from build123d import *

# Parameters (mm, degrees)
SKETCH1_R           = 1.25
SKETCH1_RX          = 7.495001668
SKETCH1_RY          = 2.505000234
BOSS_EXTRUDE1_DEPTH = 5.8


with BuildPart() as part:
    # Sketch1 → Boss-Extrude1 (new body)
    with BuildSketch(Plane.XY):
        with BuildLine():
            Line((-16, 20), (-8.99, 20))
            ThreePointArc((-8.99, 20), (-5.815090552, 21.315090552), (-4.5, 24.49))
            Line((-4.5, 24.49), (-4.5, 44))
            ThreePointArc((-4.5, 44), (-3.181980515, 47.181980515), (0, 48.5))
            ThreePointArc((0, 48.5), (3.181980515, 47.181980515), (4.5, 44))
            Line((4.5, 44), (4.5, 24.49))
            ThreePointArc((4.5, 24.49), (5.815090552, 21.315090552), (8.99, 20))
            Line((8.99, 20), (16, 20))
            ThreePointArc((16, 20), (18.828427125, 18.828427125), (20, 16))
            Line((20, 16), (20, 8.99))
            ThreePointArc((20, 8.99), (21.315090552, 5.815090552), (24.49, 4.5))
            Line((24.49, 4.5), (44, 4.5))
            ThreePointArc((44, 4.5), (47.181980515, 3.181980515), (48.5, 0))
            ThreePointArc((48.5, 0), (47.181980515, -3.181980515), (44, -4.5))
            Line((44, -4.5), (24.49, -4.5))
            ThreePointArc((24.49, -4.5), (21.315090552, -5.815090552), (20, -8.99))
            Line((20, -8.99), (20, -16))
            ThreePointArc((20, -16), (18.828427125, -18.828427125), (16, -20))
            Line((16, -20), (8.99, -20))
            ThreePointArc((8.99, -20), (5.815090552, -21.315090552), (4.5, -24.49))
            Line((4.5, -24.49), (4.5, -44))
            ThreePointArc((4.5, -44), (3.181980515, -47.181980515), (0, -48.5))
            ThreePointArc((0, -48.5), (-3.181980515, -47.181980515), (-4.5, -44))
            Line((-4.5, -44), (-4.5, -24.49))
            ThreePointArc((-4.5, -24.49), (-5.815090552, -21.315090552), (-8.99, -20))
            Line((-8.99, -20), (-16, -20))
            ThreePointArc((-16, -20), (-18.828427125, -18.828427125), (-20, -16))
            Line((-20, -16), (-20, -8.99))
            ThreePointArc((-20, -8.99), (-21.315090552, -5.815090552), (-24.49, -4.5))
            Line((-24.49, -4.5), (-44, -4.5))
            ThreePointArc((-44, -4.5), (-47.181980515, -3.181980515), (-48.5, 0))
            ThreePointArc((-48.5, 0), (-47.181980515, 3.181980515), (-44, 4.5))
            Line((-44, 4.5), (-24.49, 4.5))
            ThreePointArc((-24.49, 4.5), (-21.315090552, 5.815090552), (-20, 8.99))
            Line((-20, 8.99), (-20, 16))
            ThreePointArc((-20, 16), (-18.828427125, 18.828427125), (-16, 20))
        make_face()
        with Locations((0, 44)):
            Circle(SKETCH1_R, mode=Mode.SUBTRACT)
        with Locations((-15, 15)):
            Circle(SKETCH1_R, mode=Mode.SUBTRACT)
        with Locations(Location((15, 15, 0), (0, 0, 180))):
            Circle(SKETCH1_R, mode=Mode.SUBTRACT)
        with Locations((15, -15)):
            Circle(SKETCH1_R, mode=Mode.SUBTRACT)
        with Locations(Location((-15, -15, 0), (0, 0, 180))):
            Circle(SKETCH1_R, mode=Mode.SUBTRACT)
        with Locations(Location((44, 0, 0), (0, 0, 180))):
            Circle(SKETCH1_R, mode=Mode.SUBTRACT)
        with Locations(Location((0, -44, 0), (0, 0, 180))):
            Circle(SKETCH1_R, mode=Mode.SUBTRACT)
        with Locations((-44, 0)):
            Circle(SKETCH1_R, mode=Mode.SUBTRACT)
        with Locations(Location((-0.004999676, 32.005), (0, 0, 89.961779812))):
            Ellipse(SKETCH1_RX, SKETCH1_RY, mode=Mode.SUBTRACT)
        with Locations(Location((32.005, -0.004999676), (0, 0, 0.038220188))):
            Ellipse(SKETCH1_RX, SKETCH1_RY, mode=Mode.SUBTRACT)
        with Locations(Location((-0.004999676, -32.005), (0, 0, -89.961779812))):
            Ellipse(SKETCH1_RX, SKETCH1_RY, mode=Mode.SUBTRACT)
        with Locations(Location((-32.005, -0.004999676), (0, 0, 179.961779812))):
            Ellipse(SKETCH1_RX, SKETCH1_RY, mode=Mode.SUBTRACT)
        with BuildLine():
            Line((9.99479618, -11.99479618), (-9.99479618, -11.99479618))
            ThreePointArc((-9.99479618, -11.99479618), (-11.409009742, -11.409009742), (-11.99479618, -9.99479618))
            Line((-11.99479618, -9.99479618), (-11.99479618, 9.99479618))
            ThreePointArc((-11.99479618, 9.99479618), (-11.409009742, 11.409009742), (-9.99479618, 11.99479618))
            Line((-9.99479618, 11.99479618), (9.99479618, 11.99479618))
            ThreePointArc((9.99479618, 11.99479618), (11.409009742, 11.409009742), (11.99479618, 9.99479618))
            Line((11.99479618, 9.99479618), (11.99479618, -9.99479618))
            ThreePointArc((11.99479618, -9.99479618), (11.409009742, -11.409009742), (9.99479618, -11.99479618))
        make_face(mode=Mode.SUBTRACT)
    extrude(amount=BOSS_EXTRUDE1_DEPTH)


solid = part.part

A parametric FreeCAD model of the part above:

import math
import FreeCAD as App
import Part
import Sketcher
Q = App.Units.Quantity

doc = App.newDocument("Part")
body = doc.addObject("PartDesign::Body", "Body")

# Sketch on XY plane
sketch1 = doc.addObject("Sketcher::SketchObject", "Sketch")
body.addObject(sketch1)
sketch1.AttachmentSupport = (doc.XY_Plane, [""])
sketch1.MapMode = "FlatFace"
sketch1.addGeometry(Part.LineSegment(App.Vector(-8.99, 20, 0), App.Vector(-16, 20, 0)), False)
sketch1.addGeometry(Part.ArcOfCircle(Part.Circle(App.Vector(-16, 16, 0), App.Vector(0, 0, 1), 4), math.radians(90), math.radians(180)), False)
sketch1.addGeometry(Part.LineSegment(App.Vector(-20, 16, 0), App.Vector(-20, 8.99, 0)), False)
sketch1.addGeometry(Part.ArcOfCircle(Part.Circle(App.Vector(-24.49, 8.99, 0), App.Vector(0, 0, 1), 4.49), math.radians(-90), math.radians(0)), False)
sketch1.addGeometry(Part.LineSegment(App.Vector(-24.49, 4.5, 0), App.Vector(-44, 4.5, 0)), False)
sketch1.addGeometry(Part.ArcOfCircle(Part.Circle(App.Vector(-44, 0, 0), App.Vector(0, 0, 1), 4.5), math.radians(90), math.radians(180)), False)
sketch1.addGeometry(Part.ArcOfCircle(Part.Circle(App.Vector(-44, 0, 0), App.Vector(0, 0, 1), 4.5), math.radians(-180), math.radians(-90)), False)
sketch1.addGeometry(Part.LineSegment(App.Vector(-44, -4.5, 0), App.Vector(-24.49, -4.5, 0)), False)
sketch1.addGeometry(Part.ArcOfCircle(Part.Circle(App.Vector(-24.49, -8.99, 0), App.Vector(0, 0, 1), 4.49), math.radians(0), math.radians(90)), False)
sketch1.addGeometry(Part.LineSegment(App.Vector(-20, -8.99, 0), App.Vector(-20, -16, 0)), False)
sketch1.addGeometry(Part.ArcOfCircle(Part.Circle(App.Vector(-16, -16, 0), App.Vector(0, 0, 1), 4), math.radians(180), math.radians(270)), False)
sketch1.addGeometry(Part.LineSegment(App.Vector(-16, -20, 0), App.Vector(-8.99, -20, 0)), False)
sketch1.addGeometry(Part.ArcOfCircle(Part.Circle(App.Vector(-8.99, -24.49, 0), App.Vector(0, 0, 1), 4.49), math.radians(0), math.radians(90)), False)
sketch1.addGeometry(Part.LineSegment(App.Vector(-4.5, -24.49, 0), App.Vector(-4.5, -44, 0)), False)
sketch1.addGeometry(Part.ArcOfCircle(Part.Circle(App.Vector(0, -44, 0), App.Vector(0, 0, 1), 4.5), math.radians(-180), math.radians(-90)), False)
sketch1.addGeometry(Part.ArcOfCircle(Part.Circle(App.Vector(0, -44, 0), App.Vector(0, 0, 1), 4.5), math.radians(-90), math.radians(0)), False)
sketch1.addGeometry(Part.LineSegment(App.Vector(4.5, -44, 0), App.Vector(4.5, -24.49, 0)), False)
sketch1.addGeometry(Part.ArcOfCircle(Part.Circle(App.Vector(8.99, -24.49, 0), App.Vector(0, 0, 1), 4.49), math.radians(90), math.radians(180)), False)
sketch1.addGeometry(Part.LineSegment(App.Vector(8.99, -20, 0), App.Vector(16, -20, 0)), False)
sketch1.addGeometry(Part.ArcOfCircle(Part.Circle(App.Vector(16, -16, 0), App.Vector(0, 0, 1), 4), math.radians(-90), math.radians(0)), False)
sketch1.addGeometry(Part.LineSegment(App.Vector(20, -16, 0), App.Vector(20, -8.99, 0)), False)
sketch1.addGeometry(Part.ArcOfCircle(Part.Circle(App.Vector(24.49, -8.99, 0), App.Vector(0, 0, 1), 4.49), math.radians(90), math.radians(180)), False)
sketch1.addGeometry(Part.LineSegment(App.Vector(24.49, -4.5, 0), App.Vector(44, -4.5, 0)), False)
sketch1.addGeometry(Part.ArcOfCircle(Part.Circle(App.Vector(44, 0, 0), App.Vector(0, 0, 1), 4.5), math.radians(-90), math.radians(0)), False)
sketch1.addGeometry(Part.ArcOfCircle(Part.Circle(App.Vector(44, 0, 0), App.Vector(0, 0, 1), 4.5), math.radians(0), math.radians(90)), False)
sketch1.addGeometry(Part.LineSegment(App.Vector(44, 4.5, 0), App.Vector(24.49, 4.5, 0)), False)
sketch1.addGeometry(Part.ArcOfCircle(Part.Circle(App.Vector(24.49, 8.99, 0), App.Vector(0, 0, 1), 4.49), math.radians(180), math.radians(270)), False)
sketch1.addGeometry(Part.LineSegment(App.Vector(20, 8.99, 0), App.Vector(20, 16, 0)), False)
sketch1.addGeometry(Part.ArcOfCircle(Part.Circle(App.Vector(16, 16, 0), App.Vector(0, 0, 1), 4), math.radians(0), math.radians(90)), False)
sketch1.addGeometry(Part.LineSegment(App.Vector(16, 20, 0), App.Vector(8.99, 20, 0)), False)
sketch1.addGeometry(Part.ArcOfCircle(Part.Circle(App.Vector(8.99, 24.49, 0), App.Vector(0, 0, 1), 4.49), math.radians(180), math.radians(270)), False)
sketch1.addGeometry(Part.LineSegment(App.Vector(4.5, 24.49, 0), App.Vector(4.5, 44, 0)), False)
sketch1.addGeometry(Part.ArcOfCircle(Part.Circle(App.Vector(0, 44, 0), App.Vector(0, 0, 1), 4.5), math.radians(0), math.radians(90)), False)
sketch1.addGeometry(Part.ArcOfCircle(Part.Circle(App.Vector(0, 44, 0), App.Vector(0, 0, 1), 4.5), math.radians(90), math.radians(180)), False)
sketch1.addGeometry(Part.LineSegment(App.Vector(-4.5, 44, 0), App.Vector(-4.5, 24.49, 0)), False)
sketch1.addGeometry(Part.ArcOfCircle(Part.Circle(App.Vector(-8.99, 24.49, 0), App.Vector(0, 0, 1), 4.49), math.radians(-90), math.radians(0)), False)
sketch1.addGeometry(Part.Ellipse(App.Vector(39.5, 0, 0), App.Vector(32.003329, 2.5, 0), App.Vector(32.005, -0.005, 0)), False)
sketch1.addGeometry(Part.Circle(App.Vector(15, -15, 0), App.Vector(0, 0, 1), 1.25), False)
sketch1.addGeometry(Part.Circle(App.Vector(0, -44, 0), App.Vector(0, 0, 1), 1.25), False)
sketch1.addGeometry(Part.Ellipse(App.Vector(0, -39.5, 0), App.Vector(2.5, -32.003329, 0), App.Vector(-0.005, -32.005, 0)), False)
sketch1.addGeometry(Part.Circle(App.Vector(-15, -15, 0), App.Vector(0, 0, 1), 1.25), False)
sketch1.addGeometry(Part.Ellipse(App.Vector(-39.5, 0, 0), App.Vector(-32.006671, -2.509999, 0), App.Vector(-32.005, -0.005, 0)), False)
sketch1.addGeometry(Part.Circle(App.Vector(44, 0, 0), App.Vector(0, 0, 1), 1.25), False)
sketch1.addGeometry(Part.Circle(App.Vector(15, 15, 0), App.Vector(0, 0, 1), 1.25), False)
sketch1.addGeometry(Part.LineSegment(App.Vector(9.994796, -11.994796, 0), App.Vector(-9.994796, -11.994796, 0)), False)
sketch1.addGeometry(Part.ArcOfCircle(Part.Circle(App.Vector(-9.994796, -9.994796, 0), App.Vector(0, 0, 1), 2), math.radians(-180), math.radians(-90)), False)
sketch1.addGeometry(Part.LineSegment(App.Vector(-11.994796, -9.994796, 0), App.Vector(-11.994796, 9.994796, 0)), False)
sketch1.addGeometry(Part.ArcOfCircle(Part.Circle(App.Vector(-9.994796, 9.994796, 0), App.Vector(0, 0, 1), 2), math.radians(90), math.radians(180)), False)
sketch1.addGeometry(Part.LineSegment(App.Vector(-9.994796, 11.994796, 0), App.Vector(9.994796, 11.994796, 0)), False)
sketch1.addGeometry(Part.ArcOfCircle(Part.Circle(App.Vector(9.994796, 9.994796, 0), App.Vector(0, 0, 1), 2), math.radians(0), math.radians(90)), False)
sketch1.addGeometry(Part.LineSegment(App.Vector(11.994796, 9.994796, 0), App.Vector(11.994796, -9.994796, 0)), False)
sketch1.addGeometry(Part.ArcOfCircle(Part.Circle(App.Vector(9.994796, -9.994796, 0), App.Vector(0, 0, 1), 2), math.radians(-90), math.radians(0)), False)
sketch1.addGeometry(Part.Circle(App.Vector(-15, 15, 0), App.Vector(0, 0, 1), 1.25), False)
sketch1.addGeometry(Part.Circle(App.Vector(-44, 0, 0), App.Vector(0, 0, 1), 1.25), False)
sketch1.addGeometry(Part.Ellipse(App.Vector(0, 39.5, 0), App.Vector(-2.509999, 32.006671, 0), App.Vector(-0.005, 32.005, 0)), False)
sketch1.addGeometry(Part.Circle(App.Vector(0, 44, 0), App.Vector(0, 0, 1), 1.25), False)
sketch1.addConstraint(Sketcher.Constraint("Block", 36))
sketch1.addConstraint(Sketcher.Constraint("Block", 39))
sketch1.addConstraint(Sketcher.Constraint("Block", 41))
sketch1.addConstraint(Sketcher.Constraint("Block", 54))
sketch1.addConstraint(Sketcher.Constraint("Tangent", 0, 2, 1, 1))
sketch1.addConstraint(Sketcher.Constraint("Tangent", 1, 2, 2, 1))
sketch1.addConstraint(Sketcher.Constraint("Tangent", 2, 2, 3, 2))
sketch1.addConstraint(Sketcher.Constraint("Tangent", 3, 1, 4, 1))
sketch1.addConstraint(Sketcher.Constraint("Tangent", 4, 2, 5, 1))
sketch1.addConstraint(Sketcher.Constraint("Tangent", 5, 2, 6, 1))
sketch1.addConstraint(Sketcher.Constraint("Tangent", 6, 2, 7, 1))
sketch1.addConstraint(Sketcher.Constraint("Tangent", 7, 2, 8, 2))
sketch1.addConstraint(Sketcher.Constraint("Tangent", 8, 1, 9, 1))
sketch1.addConstraint(Sketcher.Constraint("Tangent", 9, 2, 10, 1))
sketch1.addConstraint(Sketcher.Constraint("Tangent", 10, 2, 11, 1))
sketch1.addConstraint(Sketcher.Constraint("Tangent", 11, 2, 12, 2))
sketch1.addConstraint(Sketcher.Constraint("Tangent", 12, 1, 13, 1))
sketch1.addConstraint(Sketcher.Constraint("Tangent", 13, 2, 14, 1))
sketch1.addConstraint(Sketcher.Constraint("Tangent", 14, 2, 15, 1))
sketch1.addConstraint(Sketcher.Constraint("Tangent", 15, 2, 16, 1))
sketch1.addConstraint(Sketcher.Constraint("Tangent", 16, 2, 17, 2))
sketch1.addConstraint(Sketcher.Constraint("Tangent", 17, 1, 18, 1))
sketch1.addConstraint(Sketcher.Constraint("Tangent", 18, 2, 19, 1))
sketch1.addConstraint(Sketcher.Constraint("Tangent", 19, 2, 20, 1))
sketch1.addConstraint(Sketcher.Constraint("Tangent", 20, 2, 21, 2))
sketch1.addConstraint(Sketcher.Constraint("Tangent", 21, 1, 22, 1))
sketch1.addConstraint(Sketcher.Constraint("Tangent", 22, 2, 23, 1))
sketch1.addConstraint(Sketcher.Constraint("Tangent", 23, 2, 24, 1))
sketch1.addConstraint(Sketcher.Constraint("Tangent", 24, 2, 25, 1))
sketch1.addConstraint(Sketcher.Constraint("Tangent", 25, 2, 26, 2))
sketch1.addConstraint(Sketcher.Constraint("Tangent", 26, 1, 27, 1))
sketch1.addConstraint(Sketcher.Constraint("Tangent", 27, 2, 28, 1))
sketch1.addConstraint(Sketcher.Constraint("Tangent", 28, 2, 29, 1))
sketch1.addConstraint(Sketcher.Constraint("Tangent", 29, 2, 30, 2))
sketch1.addConstraint(Sketcher.Constraint("Tangent", 30, 1, 31, 1))
sketch1.addConstraint(Sketcher.Constraint("Tangent", 31, 2, 32, 1))
sketch1.addConstraint(Sketcher.Constraint("Tangent", 32, 2, 33, 1))
sketch1.addConstraint(Sketcher.Constraint("Tangent", 33, 2, 34, 1))
sketch1.addConstraint(Sketcher.Constraint("Tangent", 34, 2, 35, 2))
sketch1.addConstraint(Sketcher.Constraint("Tangent", 35, 1, 0, 1))
sketch1.addConstraint(Sketcher.Constraint("Tangent", 44, 2, 45, 2))
sketch1.addConstraint(Sketcher.Constraint("Tangent", 45, 1, 46, 1))
sketch1.addConstraint(Sketcher.Constraint("Tangent", 46, 2, 47, 2))
sketch1.addConstraint(Sketcher.Constraint("Tangent", 47, 1, 48, 1))
sketch1.addConstraint(Sketcher.Constraint("Tangent", 48, 2, 49, 2))
sketch1.addConstraint(Sketcher.Constraint("Tangent", 49, 1, 50, 1))
sketch1.addConstraint(Sketcher.Constraint("Tangent", 50, 2, 51, 2))
sketch1.addConstraint(Sketcher.Constraint("Tangent", 51, 1, 44, 1))
sketch1.addConstraint(Sketcher.Constraint("Horizontal", 0))
sketch1.addConstraint(Sketcher.Constraint("Vertical", 2))
sketch1.addConstraint(Sketcher.Constraint("Horizontal", 4))
sketch1.addConstraint(Sketcher.Constraint("Horizontal", 7))
sketch1.addConstraint(Sketcher.Constraint("Vertical", 9))
sketch1.addConstraint(Sketcher.Constraint("Horizontal", 11))
sketch1.addConstraint(Sketcher.Constraint("Vertical", 13))
sketch1.addConstraint(Sketcher.Constraint("Vertical", 16))
sketch1.addConstraint(Sketcher.Constraint("Horizontal", 18))
sketch1.addConstraint(Sketcher.Constraint("Vertical", 20))
sketch1.addConstraint(Sketcher.Constraint("Horizontal", 22))
sketch1.addConstraint(Sketcher.Constraint("Horizontal", 25))
sketch1.addConstraint(Sketcher.Constraint("Vertical", 27))
sketch1.addConstraint(Sketcher.Constraint("Horizontal", 29))
sketch1.addConstraint(Sketcher.Constraint("Vertical", 31))
sketch1.addConstraint(Sketcher.Constraint("Vertical", 34))
sketch1.addConstraint(Sketcher.Constraint("Horizontal", 44))
sketch1.addConstraint(Sketcher.Constraint("Vertical", 46))
sketch1.addConstraint(Sketcher.Constraint("Horizontal", 48))
sketch1.addConstraint(Sketcher.Constraint("Vertical", 50))
sketch1.addConstraint(Sketcher.Constraint("Coincident", 38, 3, 14, 3))
sketch1.addConstraint(Sketcher.Constraint("Coincident", 42, 3, 23, 3))
sketch1.addConstraint(Sketcher.Constraint("Coincident", 53, 3, 5, 3))
sketch1.addConstraint(Sketcher.Constraint("Coincident", 55, 3, 32, 3))
sketch1.addConstraint(Sketcher.Constraint("Equal", 5, 6))
sketch1.addConstraint(Sketcher.Constraint("Equal", 3, 8))
sketch1.addConstraint(Sketcher.Constraint("Equal", 1, 10))
sketch1.addConstraint(Sketcher.Constraint("Equal", 8, 12))
sketch1.addConstraint(Sketcher.Constraint("Equal", 6, 14))
sketch1.addConstraint(Sketcher.Constraint("Equal", 14, 15))
sketch1.addConstraint(Sketcher.Constraint("Equal", 12, 17))
sketch1.addConstraint(Sketcher.Constraint("Equal", 10, 19))
sketch1.addConstraint(Sketcher.Constraint("Equal", 17, 21))
sketch1.addConstraint(Sketcher.Constraint("Equal", 15, 23))
sketch1.addConstraint(Sketcher.Constraint("Equal", 23, 24))
sketch1.addConstraint(Sketcher.Constraint("Equal", 21, 26))
sketch1.addConstraint(Sketcher.Constraint("Equal", 19, 28))
sketch1.addConstraint(Sketcher.Constraint("Equal", 26, 30))
sketch1.addConstraint(Sketcher.Constraint("Equal", 24, 32))
sketch1.addConstraint(Sketcher.Constraint("Equal", 32, 33))
sketch1.addConstraint(Sketcher.Constraint("Equal", 30, 35))
sketch1.addConstraint(Sketcher.Constraint("Equal", 37, 38))
sketch1.addConstraint(Sketcher.Constraint("Equal", 38, 40))
sketch1.addConstraint(Sketcher.Constraint("Equal", 40, 42))
sketch1.addConstraint(Sketcher.Constraint("Equal", 42, 43))
sketch1.addConstraint(Sketcher.Constraint("Equal", 45, 47))
sketch1.addConstraint(Sketcher.Constraint("Equal", 47, 49))
sketch1.addConstraint(Sketcher.Constraint("Equal", 49, 51))
sketch1.addConstraint(Sketcher.Constraint("Equal", 43, 52))
sketch1.addConstraint(Sketcher.Constraint("Equal", 52, 53))
sketch1.addConstraint(Sketcher.Constraint("Equal", 53, 55))
sketch1.addConstraint(Sketcher.Constraint("Symmetric", 1, 3, 19, 3, -1, 1))
sketch1.addConstraint(Sketcher.Constraint("Symmetric", 5, 3, 23, 3, -1, 1))
sketch1.addConstraint(Sketcher.Constraint("Symmetric", 10, 3, 28, 3, -1, 1))
sketch1.addConstraint(Sketcher.Constraint("Symmetric", 14, 3, 32, 3, -1, 1))
sketch1.addConstraint(Sketcher.Constraint("Symmetric", 40, 3, 43, 3, -1, 1))
sketch1.addConstraint(Sketcher.Constraint("Symmetric", 45, 3, 49, 3, -1, 1))
sketch1.addConstraint(Sketcher.Constraint("Symmetric", 37, 3, 52, 3, -1, 1))
sketch1.addConstraint(Sketcher.Constraint("Symmetric", 12, 3, 17, 3, -2))
sketch1.addConstraint(Sketcher.Constraint("Symmetric", 8, 3, 21, 3, -2))
sketch1.addConstraint(Sketcher.Constraint("Symmetric", 37, 3, 40, 3, -2))
sketch1.addConstraint(Sketcher.Constraint("PointOnObject", 5, 2, -1))
sketch1.addConstraint(Sketcher.Constraint("PointOnObject", 14, 2, -2))
sketch1.addConstraint(Sketcher.Constraint("PointOnObject", 23, 2, -1))
sketch1.addConstraint(Sketcher.Constraint("PointOnObject", 32, 2, -2))
sketch1.addConstraint(Sketcher.Constraint("Equal", 29, 2))
sketch1.addConstraint(Sketcher.Constraint("Equal", 25, 13))
sketch1.addConstraint(Sketcher.Constraint("Equal", 48, 46))
sketch1.addConstraint(Sketcher.Constraint("Radius", 1, Q("4 mm")))
sketch1.addConstraint(Sketcher.Constraint("Radius", 45, Q("2 mm")))
sketch1.addConstraint(Sketcher.Constraint("Diameter", 37, Q("2.5 mm")))
sketch1.addConstraint(Sketcher.Constraint("Radius", 5, Q("4.5 mm")))
sketch1.addConstraint(Sketcher.Constraint("Radius", 3, Q("4.49 mm")))
sketch1.addConstraint(Sketcher.Constraint("DistanceX", 1, 3, -1, 1, Q("16 mm")))
sketch1.addConstraint(Sketcher.Constraint("DistanceX", 5, 3, -1, 1, Q("44 mm")))
sketch1.addConstraint(Sketcher.Constraint("DistanceX", -1, 1, 37, 3, Q("15 mm")))
sketch1.addConstraint(Sketcher.Constraint("DistanceY", 37, 3, -1, 1, Q("15 mm")))
sketch1.addConstraint(Sketcher.Constraint("DistanceX", 44, 2, 44, 1, Q("19.989592 mm")))
pad1 = doc.addObject("PartDesign::Pad", "Pad")
body.addObject(pad1)
pad1.Profile = sketch1
pad1.Length = 5.8

doc.recompute()
